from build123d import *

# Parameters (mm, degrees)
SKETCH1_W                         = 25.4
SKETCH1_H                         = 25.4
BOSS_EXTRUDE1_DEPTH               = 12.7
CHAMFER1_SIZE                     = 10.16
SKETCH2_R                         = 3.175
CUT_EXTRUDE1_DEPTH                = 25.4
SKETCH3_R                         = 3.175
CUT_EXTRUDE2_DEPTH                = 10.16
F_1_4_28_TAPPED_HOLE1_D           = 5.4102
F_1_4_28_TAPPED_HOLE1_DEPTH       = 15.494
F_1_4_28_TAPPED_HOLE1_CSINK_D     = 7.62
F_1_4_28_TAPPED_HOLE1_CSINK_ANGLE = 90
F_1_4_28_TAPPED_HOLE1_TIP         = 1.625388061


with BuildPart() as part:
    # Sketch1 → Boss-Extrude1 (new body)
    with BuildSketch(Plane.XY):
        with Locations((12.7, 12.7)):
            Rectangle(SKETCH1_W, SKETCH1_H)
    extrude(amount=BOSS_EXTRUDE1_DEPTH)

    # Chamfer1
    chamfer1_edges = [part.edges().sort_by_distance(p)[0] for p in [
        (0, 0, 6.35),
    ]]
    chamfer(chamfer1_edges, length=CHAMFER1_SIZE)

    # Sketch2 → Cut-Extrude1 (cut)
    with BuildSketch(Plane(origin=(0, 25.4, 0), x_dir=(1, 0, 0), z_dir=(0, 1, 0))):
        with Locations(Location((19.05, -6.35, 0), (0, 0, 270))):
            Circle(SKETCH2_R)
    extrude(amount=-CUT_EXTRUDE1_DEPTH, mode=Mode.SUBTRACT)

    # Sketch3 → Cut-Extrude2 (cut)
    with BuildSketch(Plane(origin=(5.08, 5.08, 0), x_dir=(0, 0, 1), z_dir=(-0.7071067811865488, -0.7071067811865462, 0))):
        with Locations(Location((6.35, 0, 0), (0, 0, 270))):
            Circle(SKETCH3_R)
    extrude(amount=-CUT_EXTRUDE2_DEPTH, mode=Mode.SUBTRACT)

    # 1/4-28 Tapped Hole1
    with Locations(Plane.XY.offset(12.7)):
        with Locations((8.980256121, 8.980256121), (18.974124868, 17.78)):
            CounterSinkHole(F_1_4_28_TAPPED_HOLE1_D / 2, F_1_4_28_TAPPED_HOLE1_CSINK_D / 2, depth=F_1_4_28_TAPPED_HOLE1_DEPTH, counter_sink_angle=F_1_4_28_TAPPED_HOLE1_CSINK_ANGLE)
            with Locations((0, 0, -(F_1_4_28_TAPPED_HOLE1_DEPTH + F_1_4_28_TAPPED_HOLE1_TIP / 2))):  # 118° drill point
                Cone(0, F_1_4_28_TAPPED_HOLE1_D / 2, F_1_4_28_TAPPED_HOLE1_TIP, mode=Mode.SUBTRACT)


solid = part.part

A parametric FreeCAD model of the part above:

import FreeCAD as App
import Part
import Sketcher
Q = App.Units.Quantity


def edges_at(feature, points):
    """Names of the edges that pass closest to the given points."""
    edges = feature.Shape.Edges
    near = lambda p: min(range(len(edges)), key=lambda i: edges[i].distToShape(Part.Vertex(*p))[0])
    return sorted({f"Edge{near(p) + 1}" for p in points})


def add_polygon(sketch, points):
    """Adds a closed chain of lines whose ends are joined by coincident constraints."""
    first, n = sketch.GeometryCount, len(points)
    for a, b in zip(points, points[1:] + points[:1]):
        sketch.addGeometry(Part.LineSegment(App.Vector(*a, 0), App.Vector(*b, 0)), False)
    for i in range(n):
        sketch.addConstraint(Sketcher.Constraint("Coincident", first + i, 2, first + (i + 1) % n, 1))

doc = App.newDocument("Part")
body = doc.addObject("PartDesign::Body", "Body")

# Sketch on XY plane
sketch1 = doc.addObject("Sketcher::SketchObject", "Sketch")
body.addObject(sketch1)
sketch1.AttachmentSupport = (doc.XY_Plane, [""])
sketch1.MapMode = "FlatFace"
add_polygon(sketch1, [(0, 25), (0, 0), (25, 0), (25, 25)])  # lines 0-3
sketch1.addConstraint([
    Sketcher.Constraint("Vertical", 0),
    Sketcher.Constraint("Horizontal", 1),
    Sketcher.Constraint("Vertical", 2),
    Sketcher.Constraint("Horizontal", 3),
    Sketcher.Constraint("Coincident", 0, 2, -1, 1),
    Sketcher.Constraint("Equal", 3, 0),
    Sketcher.Constraint("DistanceX", 1, 1, 1, 2, Q("1 in")),
])
pad1 = doc.addObject("PartDesign::Pad", "Pad")
body.addObject(pad1)
pad1.Profile = sketch1
pad1.Length = Q("0.5 in")
doc.recompute()

chamfer = doc.addObject("PartDesign::Chamfer", "Chamfer")
body.addObject(chamfer)
chamfer.Base = (pad1, edges_at(pad1, [(0, 0, 6.35)]))
chamfer.Size = Q("0.4 in")

# Sketch on XZ plane
sketch2 = doc.addObject("Sketcher::SketchObject", "Sketch001")
body.addObject(sketch2)
sketch2.AttachmentSupport = (doc.XZ_Plane, [""])
sketch2.MapMode = "FlatFace"
sketch2.AttachmentOffset = App.Placement(App.Vector(0, 0, -1 * 25.4), App.Rotation())
sketch2.addGeometry(Part.Circle(App.Vector(19.1, 6.3, 0), App.Vector(0, 0, 1), 3.2), False)
sketch2.addConstraint([
    Sketcher.Constraint("Diameter", 0, Q("0.25 in")),
    Sketcher.Constraint("DistanceX", -1, 1, 0, 3, Q("0.75 in")),
    Sketcher.Constraint("DistanceY", -1, 1, 0, 3, Q("0.25 in")),
])
pocket1 = doc.addObject("PartDesign::Pocket", "Pocket")
body.addObject(pocket1)
pocket1.Profile = sketch2
pocket1.Length = Q("1 in")
pocket1.Reversed = True

# Sketch on an angled plane
sketch3 = doc.addObject("Sketcher::SketchObject", "Sketch002")
body.addObject(sketch3)
sketch3.Placement = App.Placement(App.Vector(5.08, 5.08, 0), App.Rotation(App.Vector(0, 0, 1), App.Vector(-0.707106781, 0.707106781, 0), App.Vector(-0.707106781, -0.707106781, 0), "ZXY"))
sketch3.addGeometry(Part.Circle(App.Vector(6.3, 0, 0), App.Vector(0, 0, 1), 3.2), False)
sketch3.addConstraint([
    Sketcher.Constraint("PointOnObject", 0, 3, -1),
    Sketcher.Constraint("Diameter", 0, Q("0.25 in")),
    Sketcher.Constraint("DistanceX", -1, 1, 0, 3, Q("0.25 in")),
])
pocket2 = doc.addObject("PartDesign::Pocket", "Pocket001")
body.addObject(pocket2)
pocket2.Profile = sketch3
pocket2.Length = Q("0.4 in")

# Sketch on XY plane
sketch4 = doc.addObject("Sketcher::SketchObject", "Sketch003")
body.addObject(sketch4)
sketch4.AttachmentSupport = (doc.XY_Plane, [""])
sketch4.MapMode = "FlatFace"
sketch4.AttachmentOffset = App.Placement(App.Vector(0, 0, 0.5 * 25.4), App.Rotation())
sketch4.addGeometry([
    Part.Circle(App.Vector(9, 9, 0), App.Vector(0, 0, 1), 2.7),
    Part.Circle(App.Vector(19, 17.8, 0), App.Vector(0, 0, 1), 2.7),
], False)
sketch4.addConstraint([
    Sketcher.Constraint("Equal", 0, 1),
    Sketcher.Constraint("Diameter", 0, Q("0.213 in")),
    Sketcher.Constraint("DistanceY", -1, 1, 1, 3, Q("0.7 in")),
    Sketcher.Constraint("DistanceX", 0, 3, 1, 3, Q("9.993869 mm")),
    Sketcher.Constraint("DistanceX", -1, 1, 0, 3, Q("8.980256 mm")),
    Sketcher.Constraint("DistanceY", -1, 1, 0, 3, Q("8.980256 mm")),
])
doc.recompute()
hole = doc.addObject("PartDesign::Hole", "Hole")
body.addObject(hole)
hole.Profile = sketch4
hole.ThreadType = "None"
hole.Diameter = Q("0.213 in")
hole.DepthType = "Dimension"
hole.Depth = Q("0.61 in")
hole.DrillPoint = "Angled"
hole.DrillPointAngle = 118
hole.HoleCutType = "Countersink"
hole.HoleCutDiameter = Q("0.3 in")
hole.HoleCutCountersinkAngle = 90

doc.recompute()
